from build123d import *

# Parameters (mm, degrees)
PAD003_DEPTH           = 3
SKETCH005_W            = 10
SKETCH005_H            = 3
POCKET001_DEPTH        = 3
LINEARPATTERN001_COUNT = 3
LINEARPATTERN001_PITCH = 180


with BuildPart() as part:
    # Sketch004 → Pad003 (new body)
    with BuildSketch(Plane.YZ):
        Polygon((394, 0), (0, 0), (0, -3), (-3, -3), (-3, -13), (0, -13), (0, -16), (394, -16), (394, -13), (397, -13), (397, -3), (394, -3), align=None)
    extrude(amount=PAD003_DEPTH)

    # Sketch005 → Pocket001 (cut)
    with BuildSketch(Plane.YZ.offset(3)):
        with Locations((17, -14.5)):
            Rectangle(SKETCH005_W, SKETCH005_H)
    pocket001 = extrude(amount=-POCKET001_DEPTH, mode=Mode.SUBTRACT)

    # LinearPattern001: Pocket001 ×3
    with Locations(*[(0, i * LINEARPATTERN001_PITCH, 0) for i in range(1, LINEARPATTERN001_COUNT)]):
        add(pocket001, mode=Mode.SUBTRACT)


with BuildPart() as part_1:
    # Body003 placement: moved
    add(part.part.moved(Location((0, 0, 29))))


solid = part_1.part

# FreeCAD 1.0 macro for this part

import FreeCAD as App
import Part
import Sketcher
Q = App.Units.Quantity

doc = App.newDocument("Part")
body = doc.addObject("PartDesign::Body", "Body")

# Sketch on YZ plane
sketch1 = doc.addObject("Sketcher::SketchObject", "Sketch")
body.addObject(sketch1)
sketch1.AttachmentSupport = (doc.YZ_Plane, [""])
sketch1.MapMode = "FlatFace"
sketch1.addGeometry([
    Part.LineSegment(App.Vector(394, 0, 0), App.Vector(0, 0, 0)),  # 0
    Part.LineSegment(App.Vector(0, 0, 0), App.Vector(0, -3, 0)),  # 1
    Part.LineSegment(App.Vector(0, -3, 0), App.Vector(-3, -3, 0)),  # 2
    Part.LineSegment(App.Vector(-3, -3, 0), App.Vector(-3, -13, 0)),  # 3
    Part.LineSegment(App.Vector(-3, -13, 0), App.Vector(0, -13, 0)),  # 4
    Part.LineSegment(App.Vector(0, -13, 0), App.Vector(0, -16, 0)),  # 5
    Part.LineSegment(App.Vector(0, -16, 0), App.Vector(394, -16, 0)),  # 6
    Part.LineSegment(App.Vector(394, -16, 0), App.Vector(394, -13, 0)),  # 7
    Part.LineSegment(App.Vector(394, -13, 0), App.Vector(397, -13, 0)),  # 8
    Part.LineSegment(App.Vector(397, -13, 0), App.Vector(397, -3, 0)),  # 9
    Part.LineSegment(App.Vector(397, -3, 0), App.Vector(394, -3, 0)),  # 10
    Part.LineSegment(App.Vector(394, -3, 0), App.Vector(394, 0, 0)),  # 11
], False)
sketch1.addConstraint([
    Sketcher.Constraint("Coincident", 0, 2, 1, 1),
    Sketcher.Constraint("Coincident", 1, 2, 2, 1),
    Sketcher.Constraint("Coincident", 2, 2, 3, 1),
    Sketcher.Constraint("Coincident", 3, 2, 4, 1),
    Sketcher.Constraint("Coincident", 4, 2, 5, 1),
    Sketcher.Constraint("Coincident", 5, 2, 6, 1),
    Sketcher.Constraint("Coincident", 6, 2, 7, 1),
    Sketcher.Constraint("Coincident", 7, 2, 8, 1),
    Sketcher.Constraint("Coincident", 8, 2, 9, 1),
    Sketcher.Constraint("Coincident", 9, 2, 10, 1),
    Sketcher.Constraint("Coincident", 10, 2, 11, 1),
    Sketcher.Constraint("Coincident", 11, 2, 0, 1),
    Sketcher.Constraint("Horizontal", 0),
    Sketcher.Constraint("Vertical", 1),
    Sketcher.Constraint("Horizontal", 2),
    Sketcher.Constraint("Vertical", 3),
    Sketcher.Constraint("Horizontal", 4),
    Sketcher.Constraint("Vertical", 5),
    Sketcher.Constraint("Horizontal", 6),
    Sketcher.Constraint("Vertical", 7),
    Sketcher.Constraint("Horizontal", 8),
    Sketcher.Constraint("Vertical", 9),
    Sketcher.Constraint("Horizontal", 10),
    Sketcher.Constraint("Vertical", 11),
    Sketcher.Constraint("Coincident", 0, 2, -1, 1),
    Sketcher.Constraint("PointOnObject", 4, 2, -2),
    Sketcher.Constraint("Horizontal", 4, 2, 7, 2),
    Sketcher.Constraint("Horizontal", 2, 2, 9, 2),
    Sketcher.Constraint("Vertical", 7, 2, 10, 2),
    Sketcher.Constraint("Equal", 4, 8),
    Sketcher.Constraint("Equal", 10, 1),
    Sketcher.Constraint("Equal", 1, 5),
    Sketcher.Constraint("DistanceX", 0, 2, 0, 1, Q("394 mm")),
    Sketcher.Constraint("DistanceX", 2, 2, 2, 1, Q("3 mm")),
    Sketcher.Constraint("DistanceY", 3, 2, 3, 1, Q("10 mm")),
])
pad1 = doc.addObject("PartDesign::Pad", "Pad")
body.addObject(pad1)
pad1.Profile = sketch1
pad1.Length = 3

# Sketch on YZ plane
sketch2 = doc.addObject("Sketcher::SketchObject", "Sketch001")
body.addObject(sketch2)
sketch2.AttachmentSupport = (doc.YZ_Plane, [""])
sketch2.MapMode = "FlatFace"
sketch2.AttachmentOffset = App.Placement(App.Vector(0, 0, 3), App.Rotation())
sketch2.addGeometry([
    Part.LineSegment(App.Vector(12, -13, 0), App.Vector(12, -16, 0)),
    Part.LineSegment(App.Vector(12, -16, 0), App.Vector(22, -16, 0)),
    Part.LineSegment(App.Vector(22, -16, 0), App.Vector(22, -13, 0)),
    Part.LineSegment(App.Vector(22, -13, 0), App.Vector(12, -13, 0)),
], False)
sketch2.addConstraint([
    Sketcher.Constraint("Coincident", 0, 2, 1, 1),
    Sketcher.Constraint("Coincident", 1, 2, 2, 1),
    Sketcher.Constraint("Coincident", 2, 2, 3, 1),
    Sketcher.Constraint("Coincident", 3, 2, 0, 1),
    Sketcher.Constraint("Vertical", 0),
    Sketcher.Constraint("Horizontal", 1),
    Sketcher.Constraint("Vertical", 2),
    Sketcher.Constraint("Horizontal", 3),
    Sketcher.Constraint("DistanceX", 1, 1, 1, 2, Q("10 mm")),
    Sketcher.Constraint("DistanceY", 0, 2, 0, 1, Q("3 mm")),
    Sketcher.Constraint("DistanceX", -1, 1, 0, 2, Q("12 mm")),
    Sketcher.Constraint("DistanceY", 0, 2, -1, 1, Q("16 mm")),
])
pocket1 = doc.addObject("PartDesign::Pocket", "Pocket")
body.addObject(pocket1)
pocket1.Profile = sketch2
pocket1.Length = 3
doc.recompute()

linearpattern = doc.addObject("PartDesign::LinearPattern", "LinearPattern")
body.addObject(linearpattern)
linearpattern.Originals = [pocket1]
linearpattern.Direction = (doc.Y_Axis, [""])
linearpattern.Mode = "offset"
linearpattern.Offset = 180
linearpattern.Occurrences = 3
body.Tip = linearpattern
body2 = doc.addObject("PartDesign::Body", "Body001")
doc.recompute()

body.Placement = App.Placement(App.Vector(0, 0, 29), App.Rotation(App.Vector(0, 0, 1), 0))
boolean = doc.addObject("PartDesign::Boolean", "Boolean")
body2.addObject(boolean)
boolean.Type = "Fuse"
boolean.addObjects([body])

doc.recompute()
